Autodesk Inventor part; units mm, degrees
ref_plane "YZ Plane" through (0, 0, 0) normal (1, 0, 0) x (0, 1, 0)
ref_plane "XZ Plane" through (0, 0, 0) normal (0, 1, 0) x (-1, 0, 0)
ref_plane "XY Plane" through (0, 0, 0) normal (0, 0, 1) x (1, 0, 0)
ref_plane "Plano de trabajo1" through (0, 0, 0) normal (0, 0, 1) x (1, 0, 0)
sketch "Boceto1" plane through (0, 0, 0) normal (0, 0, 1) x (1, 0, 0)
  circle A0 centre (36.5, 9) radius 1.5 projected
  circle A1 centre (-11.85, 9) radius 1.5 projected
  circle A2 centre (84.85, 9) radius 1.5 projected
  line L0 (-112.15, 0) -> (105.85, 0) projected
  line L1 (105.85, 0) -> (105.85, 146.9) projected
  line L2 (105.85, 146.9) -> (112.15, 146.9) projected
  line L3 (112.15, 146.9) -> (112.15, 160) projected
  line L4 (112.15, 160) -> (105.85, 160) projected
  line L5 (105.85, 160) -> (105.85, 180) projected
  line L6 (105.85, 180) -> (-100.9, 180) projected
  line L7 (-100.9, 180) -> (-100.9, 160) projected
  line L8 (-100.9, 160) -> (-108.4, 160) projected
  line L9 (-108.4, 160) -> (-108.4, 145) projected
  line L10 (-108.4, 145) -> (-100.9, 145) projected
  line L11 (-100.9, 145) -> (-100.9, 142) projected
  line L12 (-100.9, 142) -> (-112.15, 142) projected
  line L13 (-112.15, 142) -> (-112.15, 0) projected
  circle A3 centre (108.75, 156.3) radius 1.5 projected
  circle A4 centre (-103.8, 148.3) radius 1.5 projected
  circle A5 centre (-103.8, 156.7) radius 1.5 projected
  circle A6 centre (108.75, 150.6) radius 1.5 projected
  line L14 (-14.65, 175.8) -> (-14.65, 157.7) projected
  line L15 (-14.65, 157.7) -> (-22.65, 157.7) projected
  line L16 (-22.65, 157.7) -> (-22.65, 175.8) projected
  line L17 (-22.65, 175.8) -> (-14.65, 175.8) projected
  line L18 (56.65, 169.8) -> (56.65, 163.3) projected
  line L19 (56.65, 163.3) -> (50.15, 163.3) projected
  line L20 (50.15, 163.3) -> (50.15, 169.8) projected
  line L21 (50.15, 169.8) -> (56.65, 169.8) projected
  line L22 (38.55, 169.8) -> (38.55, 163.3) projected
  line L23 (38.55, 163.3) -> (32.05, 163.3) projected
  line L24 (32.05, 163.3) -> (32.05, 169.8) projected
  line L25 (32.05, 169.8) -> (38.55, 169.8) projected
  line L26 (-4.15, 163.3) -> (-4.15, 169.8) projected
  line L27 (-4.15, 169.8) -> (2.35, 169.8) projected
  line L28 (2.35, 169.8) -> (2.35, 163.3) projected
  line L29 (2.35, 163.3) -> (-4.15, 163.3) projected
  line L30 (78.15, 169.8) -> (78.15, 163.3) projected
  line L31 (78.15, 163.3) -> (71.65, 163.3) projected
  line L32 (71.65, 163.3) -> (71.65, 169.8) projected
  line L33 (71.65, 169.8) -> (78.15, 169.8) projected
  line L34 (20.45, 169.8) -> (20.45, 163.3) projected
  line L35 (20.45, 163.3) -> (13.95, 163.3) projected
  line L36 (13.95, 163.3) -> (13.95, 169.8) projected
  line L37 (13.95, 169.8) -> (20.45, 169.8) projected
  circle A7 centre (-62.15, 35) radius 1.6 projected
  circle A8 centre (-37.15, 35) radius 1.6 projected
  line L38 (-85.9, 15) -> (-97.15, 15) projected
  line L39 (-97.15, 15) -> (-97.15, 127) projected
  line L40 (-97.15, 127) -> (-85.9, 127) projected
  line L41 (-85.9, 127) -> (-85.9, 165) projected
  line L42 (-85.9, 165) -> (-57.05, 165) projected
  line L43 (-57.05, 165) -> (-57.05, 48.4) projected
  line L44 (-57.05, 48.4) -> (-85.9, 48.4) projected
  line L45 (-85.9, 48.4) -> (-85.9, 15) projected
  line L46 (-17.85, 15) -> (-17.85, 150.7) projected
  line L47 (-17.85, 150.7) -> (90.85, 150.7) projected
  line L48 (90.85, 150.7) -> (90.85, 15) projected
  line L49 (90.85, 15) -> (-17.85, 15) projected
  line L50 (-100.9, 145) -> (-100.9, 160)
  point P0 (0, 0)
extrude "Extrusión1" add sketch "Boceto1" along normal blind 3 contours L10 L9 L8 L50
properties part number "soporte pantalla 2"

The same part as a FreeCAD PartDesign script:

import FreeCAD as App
import Part
import Sketcher
from FreeCAD import Vector
Q = App.Units.Quantity

doc = App.newDocument("Part")
body = doc.addObject("PartDesign::Body", "Body")

# Sketch on XY plane
sketch1 = doc.addObject("Sketcher::SketchObject", "Sketch")
body.addObject(sketch1)
sketch1.AttachmentSupport = (doc.XY_Plane, [""])
sketch1.MapMode = "FlatFace"
sketch1.addGeometry([
    Part.LineSegment(Vector(-108.4, 145, 0), Vector(-100.9, 145, 0)),  # 0
    Part.LineSegment(Vector(-100.9, 145, 0), Vector(-100.9, 160, 0)),  # 1
    Part.LineSegment(Vector(-100.9, 160, 0), Vector(-108.4, 160, 0)),  # 2
    Part.LineSegment(Vector(-108.4, 160, 0), Vector(-108.4, 145, 0)),  # 3
    Part.Circle(Vector(-103.8, 148.3, 0), Vector(0, 0, 1), 1.5),  # 4
    Part.Circle(Vector(-103.8, 156.7, 0), Vector(0, 0, 1), 1.5),  # 5
], False)
sketch1.addConstraint([
    Sketcher.Constraint("Coincident", 0, 2, 1, 1),
    Sketcher.Constraint("Coincident", 1, 2, 2, 1),
    Sketcher.Constraint("Coincident", 2, 2, 3, 1),
    Sketcher.Constraint("Coincident", 3, 2, 0, 1),
    Sketcher.Constraint("Horizontal", 0),
    Sketcher.Constraint("Vertical", 1),
    Sketcher.Constraint("Horizontal", 2),
    Sketcher.Constraint("Vertical", 3),
    Sketcher.Constraint("Equal", 4, 5),
    Sketcher.Constraint("Vertical", 4, 3, 5, 3),
    Sketcher.Constraint("Diameter", 4, Q("3 mm")),
    Sketcher.Constraint("DistanceY", 1, 1, 1, 2, Q("15 mm")),
    Sketcher.Constraint("DistanceX", 0, 1, 0, 2, Q("7.5 mm")),
    Sketcher.Constraint("DistanceY", -1, 1, 0, 2, Q("145 mm")),
    Sketcher.Constraint("DistanceX", 4, 3, -1, 1, Q("103.8 mm")),
    Sketcher.Constraint("DistanceY", -1, 1, 4, 3, Q("148.3 mm")),
    Sketcher.Constraint("DistanceY", -1, 1, 5, 3, Q("156.7 mm")),
    Sketcher.Constraint("DistanceX", 0, 2, -1, 1, Q("100.9 mm")),
])
pad1 = doc.addObject("PartDesign::Pad", "Pad")
body.addObject(pad1)
pad1.Profile = sketch1
pad1.Length = 3

doc.recompute()
